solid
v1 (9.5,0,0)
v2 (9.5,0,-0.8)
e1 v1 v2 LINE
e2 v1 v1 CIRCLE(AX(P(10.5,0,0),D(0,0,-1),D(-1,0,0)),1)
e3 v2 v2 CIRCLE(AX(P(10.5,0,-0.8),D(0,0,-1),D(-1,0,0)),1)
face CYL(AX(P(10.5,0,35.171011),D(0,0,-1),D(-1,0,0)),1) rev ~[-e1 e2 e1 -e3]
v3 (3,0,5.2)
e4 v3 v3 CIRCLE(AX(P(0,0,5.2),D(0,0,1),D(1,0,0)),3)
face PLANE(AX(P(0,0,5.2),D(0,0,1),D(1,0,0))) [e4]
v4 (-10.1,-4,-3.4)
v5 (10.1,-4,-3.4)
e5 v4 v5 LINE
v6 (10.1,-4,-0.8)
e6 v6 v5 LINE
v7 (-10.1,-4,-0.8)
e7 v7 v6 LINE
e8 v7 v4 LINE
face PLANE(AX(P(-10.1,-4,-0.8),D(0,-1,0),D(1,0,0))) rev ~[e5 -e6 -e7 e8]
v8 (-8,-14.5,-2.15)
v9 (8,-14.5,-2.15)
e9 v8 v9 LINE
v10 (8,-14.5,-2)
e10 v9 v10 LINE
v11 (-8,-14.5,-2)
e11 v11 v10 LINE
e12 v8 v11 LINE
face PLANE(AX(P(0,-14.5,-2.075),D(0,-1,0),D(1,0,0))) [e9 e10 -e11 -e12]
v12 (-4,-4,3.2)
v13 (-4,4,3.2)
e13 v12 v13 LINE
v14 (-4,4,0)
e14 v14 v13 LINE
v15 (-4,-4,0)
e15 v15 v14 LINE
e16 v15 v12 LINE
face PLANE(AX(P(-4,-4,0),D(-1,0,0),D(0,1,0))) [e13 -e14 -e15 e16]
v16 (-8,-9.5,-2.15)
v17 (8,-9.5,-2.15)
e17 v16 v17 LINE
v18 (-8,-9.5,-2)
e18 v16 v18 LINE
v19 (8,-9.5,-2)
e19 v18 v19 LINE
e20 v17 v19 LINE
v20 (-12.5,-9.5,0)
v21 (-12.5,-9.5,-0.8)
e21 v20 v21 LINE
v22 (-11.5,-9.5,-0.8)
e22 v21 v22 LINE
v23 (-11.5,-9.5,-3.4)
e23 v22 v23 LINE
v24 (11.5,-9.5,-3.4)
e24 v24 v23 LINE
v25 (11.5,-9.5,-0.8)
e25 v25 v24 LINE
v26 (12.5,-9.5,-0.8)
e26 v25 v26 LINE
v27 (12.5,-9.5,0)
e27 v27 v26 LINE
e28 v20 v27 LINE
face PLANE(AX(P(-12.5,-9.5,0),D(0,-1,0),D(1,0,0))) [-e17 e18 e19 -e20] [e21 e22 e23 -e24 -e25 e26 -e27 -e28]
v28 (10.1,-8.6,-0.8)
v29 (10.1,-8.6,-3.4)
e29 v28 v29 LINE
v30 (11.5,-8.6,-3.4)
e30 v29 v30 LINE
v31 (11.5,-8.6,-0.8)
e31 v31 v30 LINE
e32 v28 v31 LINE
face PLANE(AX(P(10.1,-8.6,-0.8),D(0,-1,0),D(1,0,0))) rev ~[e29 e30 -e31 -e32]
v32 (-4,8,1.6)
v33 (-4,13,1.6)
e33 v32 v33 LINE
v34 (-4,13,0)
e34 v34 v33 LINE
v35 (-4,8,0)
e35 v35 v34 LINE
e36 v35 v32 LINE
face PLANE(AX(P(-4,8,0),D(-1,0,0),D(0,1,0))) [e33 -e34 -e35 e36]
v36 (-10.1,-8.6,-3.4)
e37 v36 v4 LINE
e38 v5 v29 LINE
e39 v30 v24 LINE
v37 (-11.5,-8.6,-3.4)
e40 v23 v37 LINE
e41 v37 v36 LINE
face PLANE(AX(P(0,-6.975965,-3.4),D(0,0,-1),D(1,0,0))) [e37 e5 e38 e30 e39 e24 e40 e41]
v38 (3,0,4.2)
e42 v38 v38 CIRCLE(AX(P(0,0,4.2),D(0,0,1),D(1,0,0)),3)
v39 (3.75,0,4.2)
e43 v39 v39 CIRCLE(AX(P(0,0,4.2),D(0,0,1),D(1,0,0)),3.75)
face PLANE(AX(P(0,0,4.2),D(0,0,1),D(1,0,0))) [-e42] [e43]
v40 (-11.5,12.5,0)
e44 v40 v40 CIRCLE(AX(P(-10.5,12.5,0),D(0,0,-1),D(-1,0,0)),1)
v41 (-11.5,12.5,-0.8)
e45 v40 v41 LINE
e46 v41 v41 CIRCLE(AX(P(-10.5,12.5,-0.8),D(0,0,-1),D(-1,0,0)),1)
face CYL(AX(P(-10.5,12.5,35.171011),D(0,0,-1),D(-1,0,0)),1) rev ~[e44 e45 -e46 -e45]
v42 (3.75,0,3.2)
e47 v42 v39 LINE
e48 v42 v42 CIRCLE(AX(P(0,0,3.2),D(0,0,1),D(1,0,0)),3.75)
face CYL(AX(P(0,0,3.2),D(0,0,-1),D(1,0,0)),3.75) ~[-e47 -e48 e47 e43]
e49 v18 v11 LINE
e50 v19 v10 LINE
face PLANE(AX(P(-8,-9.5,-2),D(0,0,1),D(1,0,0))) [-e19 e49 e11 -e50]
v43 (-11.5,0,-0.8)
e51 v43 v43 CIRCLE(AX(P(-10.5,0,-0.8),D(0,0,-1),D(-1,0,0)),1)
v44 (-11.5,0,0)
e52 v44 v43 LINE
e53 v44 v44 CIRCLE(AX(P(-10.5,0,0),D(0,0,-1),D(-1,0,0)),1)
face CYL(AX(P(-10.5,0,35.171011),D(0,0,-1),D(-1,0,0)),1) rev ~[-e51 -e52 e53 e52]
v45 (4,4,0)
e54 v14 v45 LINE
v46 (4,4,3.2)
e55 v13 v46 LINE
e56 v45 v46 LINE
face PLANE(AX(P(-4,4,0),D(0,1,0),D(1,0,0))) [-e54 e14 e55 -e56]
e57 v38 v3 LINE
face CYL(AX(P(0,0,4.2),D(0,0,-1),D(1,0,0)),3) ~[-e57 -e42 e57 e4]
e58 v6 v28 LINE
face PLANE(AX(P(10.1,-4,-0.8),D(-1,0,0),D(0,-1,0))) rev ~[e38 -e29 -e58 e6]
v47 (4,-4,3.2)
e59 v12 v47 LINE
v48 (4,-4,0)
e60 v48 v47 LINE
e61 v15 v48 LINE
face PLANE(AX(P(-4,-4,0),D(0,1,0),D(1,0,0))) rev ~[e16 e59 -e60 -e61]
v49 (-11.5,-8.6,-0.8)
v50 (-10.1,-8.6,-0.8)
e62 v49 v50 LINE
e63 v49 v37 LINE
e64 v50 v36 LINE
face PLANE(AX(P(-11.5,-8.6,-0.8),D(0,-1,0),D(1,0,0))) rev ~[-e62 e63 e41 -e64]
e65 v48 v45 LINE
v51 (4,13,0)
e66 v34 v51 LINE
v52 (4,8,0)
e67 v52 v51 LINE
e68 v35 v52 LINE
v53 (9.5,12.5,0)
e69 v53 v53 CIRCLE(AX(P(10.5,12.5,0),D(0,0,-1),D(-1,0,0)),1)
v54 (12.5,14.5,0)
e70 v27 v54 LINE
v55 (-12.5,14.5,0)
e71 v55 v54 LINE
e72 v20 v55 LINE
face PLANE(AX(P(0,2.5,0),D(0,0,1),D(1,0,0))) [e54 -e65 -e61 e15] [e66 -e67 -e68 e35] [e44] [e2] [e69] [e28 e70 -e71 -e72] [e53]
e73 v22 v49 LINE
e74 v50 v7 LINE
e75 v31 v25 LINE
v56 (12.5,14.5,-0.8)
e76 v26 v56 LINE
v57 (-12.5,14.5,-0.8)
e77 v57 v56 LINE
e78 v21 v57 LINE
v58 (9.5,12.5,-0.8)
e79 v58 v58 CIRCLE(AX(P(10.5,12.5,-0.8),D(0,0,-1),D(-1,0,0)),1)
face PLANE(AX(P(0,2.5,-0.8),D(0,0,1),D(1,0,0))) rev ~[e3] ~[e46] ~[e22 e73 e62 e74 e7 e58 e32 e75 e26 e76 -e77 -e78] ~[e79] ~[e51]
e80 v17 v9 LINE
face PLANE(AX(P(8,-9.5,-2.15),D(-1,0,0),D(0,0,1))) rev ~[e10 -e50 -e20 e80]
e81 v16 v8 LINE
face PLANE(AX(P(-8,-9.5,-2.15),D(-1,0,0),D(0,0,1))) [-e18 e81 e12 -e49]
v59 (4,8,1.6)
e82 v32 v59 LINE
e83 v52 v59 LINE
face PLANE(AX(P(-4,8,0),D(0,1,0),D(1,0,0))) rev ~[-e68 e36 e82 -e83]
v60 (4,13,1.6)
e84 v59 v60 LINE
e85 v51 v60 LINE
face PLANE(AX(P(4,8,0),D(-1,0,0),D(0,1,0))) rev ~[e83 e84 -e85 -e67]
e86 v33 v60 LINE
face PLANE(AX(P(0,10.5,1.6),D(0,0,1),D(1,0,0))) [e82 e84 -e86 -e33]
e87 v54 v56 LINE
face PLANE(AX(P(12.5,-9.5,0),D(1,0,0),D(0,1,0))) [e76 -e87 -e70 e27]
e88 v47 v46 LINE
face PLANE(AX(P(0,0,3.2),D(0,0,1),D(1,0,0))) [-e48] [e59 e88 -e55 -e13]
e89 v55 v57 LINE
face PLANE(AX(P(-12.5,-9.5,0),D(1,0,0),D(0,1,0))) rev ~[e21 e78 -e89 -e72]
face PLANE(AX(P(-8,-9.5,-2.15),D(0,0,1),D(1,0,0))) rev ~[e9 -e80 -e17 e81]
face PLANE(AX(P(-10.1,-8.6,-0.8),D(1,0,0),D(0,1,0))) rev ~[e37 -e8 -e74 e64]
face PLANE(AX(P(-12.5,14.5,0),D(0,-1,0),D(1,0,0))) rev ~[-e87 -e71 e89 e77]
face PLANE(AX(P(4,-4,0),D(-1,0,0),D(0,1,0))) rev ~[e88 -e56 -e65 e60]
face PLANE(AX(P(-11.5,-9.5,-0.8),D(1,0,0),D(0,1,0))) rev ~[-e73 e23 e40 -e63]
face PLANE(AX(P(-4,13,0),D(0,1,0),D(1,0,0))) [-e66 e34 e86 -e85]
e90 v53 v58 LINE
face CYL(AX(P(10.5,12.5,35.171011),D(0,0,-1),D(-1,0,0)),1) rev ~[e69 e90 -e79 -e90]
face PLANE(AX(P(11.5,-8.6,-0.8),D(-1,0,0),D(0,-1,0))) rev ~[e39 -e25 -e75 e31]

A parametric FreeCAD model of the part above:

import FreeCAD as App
import Part
import Sketcher
from FreeCAD import Vector
Q = App.Units.Quantity


def add_polygon(sketch, points):
    """Adds a closed chain of lines whose ends are joined by coincident constraints."""
    first, n = sketch.GeometryCount, len(points)
    for a, b in zip(points, points[1:] + points[:1]):
        sketch.addGeometry(Part.LineSegment(App.Vector(*a, 0), App.Vector(*b, 0)), False)
    for i in range(n):
        sketch.addConstraint(Sketcher.Constraint("Coincident", first + i, 2, first + (i + 1) % n, 1))

doc = App.newDocument("Part")
params = doc.addObject("Spreadsheet::Sheet", "Params")
for row, (alias, value) in enumerate([
    ("sketch1_width", "25 mm"),
    ("sketch1_height", "24 mm"),
    ("pad1_length", "0.8 mm"),
    ("sketch2_width", "8 mm"),
    ("pad2_length", "3.2 mm"),
    ("sketch3_diameter", "7.5 mm"),
    ("pad3_length", "1 mm"),
    ("sketch4_diameter", "6 mm"),
    ("pad4_length", "1 mm"),
    ("sketch5_diameter", "2 mm"),
    ("hole_diameter", "2 mm"),
    ("sketch6_width", "8 mm"),
    ("sketch6_height", "5 mm"),
    ("pad5_length", "1.6 mm"),
    ("sketch7_width", "23 mm"),
    ("sketch7_width2", "1.4 mm"),
    ("sketch7_height", "0.9 mm"),
    ("sketch7_height2", "4.6 mm"),
    ("pad6_length", "2.6 mm"),
    ("sketch8_width", "16 mm"),
    ("sketch8_height", "0.15 mm"),
    ("pad7_length", "5 mm"),
], start=1):
    params.set(f"A{row}", alias)
    params.set(f"B{row}", "=" + value)
    params.setAlias(f"B{row}", alias)

body = doc.addObject("PartDesign::Body", "Body")

# Sketch on XY plane
sketch1 = doc.addObject("Sketcher::SketchObject", "Sketch")
body.addObject(sketch1)
sketch1.AttachmentSupport = (doc.XY_Plane, [""])
sketch1.MapMode = "FlatFace"
add_polygon(sketch1, [(-12, 14), (-12, -10), (12, -10), (12, 14)])  # lines 0-3
sketch1.addConstraint(Sketcher.Constraint("Vertical", 0))
sketch1.addConstraint(Sketcher.Constraint("Horizontal", 1))
sketch1.addConstraint(Sketcher.Constraint("Vertical", 2))
sketch1.addConstraint(Sketcher.Constraint("Horizontal", 3))
sketch1.addConstraint(Sketcher.Constraint("DistanceX", 1, 1, 1, 2, Q("25 mm")))
sketch1.addConstraint(Sketcher.Constraint("DistanceY", 0, 2, 0, 1, Q("24 mm")))
sketch1.addConstraint(Sketcher.Constraint("DistanceX", 0, 2, -1, 1, Q("12.5 mm")))
sketch1.addConstraint(Sketcher.Constraint("DistanceY", 0, 2, -1, 1, Q("9.5 mm")))
sketch1.setExpression("Constraints[8]", "Params.sketch1_width")
sketch1.setExpression("Constraints[9]", "Params.sketch1_height")
pad1 = doc.addObject("PartDesign::Pad", "Pad")
body.addObject(pad1)
pad1.Profile = sketch1
pad1.setExpression("Length", "Params.pad1_length")
pad1.Reversed = True

# Sketch on XY plane
sketch2 = doc.addObject("Sketcher::SketchObject", "Sketch001")
body.addObject(sketch2)
sketch2.AttachmentSupport = (doc.XY_Plane, [""])
sketch2.MapMode = "FlatFace"
add_polygon(sketch2, [(-4, 4), (-4, -4), (4, -4), (4, 4)])  # lines 0-3
sketch2.addConstraint(Sketcher.Constraint("Vertical", 0))
sketch2.addConstraint(Sketcher.Constraint("Horizontal", 1))
sketch2.addConstraint(Sketcher.Constraint("Vertical", 2))
sketch2.addConstraint(Sketcher.Constraint("Horizontal", 3))
sketch2.addConstraint(Sketcher.Constraint("Symmetric", 0, 2, 2, 2, -1, 1))
sketch2.addConstraint(Sketcher.Constraint("Equal", 3, 0))
sketch2.addConstraint(Sketcher.Constraint("DistanceX", 1, 1, 1, 2, Q("8 mm")))
sketch2.setExpression("Constraints[10]", "Params.sketch2_width")
pad2 = doc.addObject("PartDesign::Pad", "Pad001")
body.addObject(pad2)
pad2.Profile = sketch2
pad2.setExpression("Length", "Params.pad2_length")

# Sketch on XY plane
sketch3 = doc.addObject("Sketcher::SketchObject", "Sketch002")
body.addObject(sketch3)
sketch3.AttachmentSupport = (doc.XY_Plane, [""])
sketch3.MapMode = "FlatFace"
sketch3.AttachmentOffset = App.Placement(Vector(0, 0, 3.2), App.Rotation())
sketch3.addGeometry(Part.Circle(Vector(0, 0, 0), Vector(0, 0, 1), 3.8), False)
sketch3.addConstraint(Sketcher.Constraint("Coincident", 0, 3, -1, 1))
sketch3.addConstraint(Sketcher.Constraint("Diameter", 0, Q("7.5 mm")))
sketch3.setExpression("Constraints[1]", "Params.sketch3_diameter")
pad3 = doc.addObject("PartDesign::Pad", "Pad002")
body.addObject(pad3)
pad3.Profile = sketch3
pad3.setExpression("Length", "Params.pad3_length")

# Sketch on XY plane
sketch4 = doc.addObject("Sketcher::SketchObject", "Sketch003")
body.addObject(sketch4)
sketch4.AttachmentSupport = (doc.XY_Plane, [""])
sketch4.MapMode = "FlatFace"
sketch4.AttachmentOffset = App.Placement(Vector(0, 0, 4.2), App.Rotation())
sketch4.addGeometry(Part.Circle(Vector(0, 0, 0), Vector(0, 0, 1), 3), False)
sketch4.addConstraint(Sketcher.Constraint("Coincident", 0, 3, -1, 1))
sketch4.addConstraint(Sketcher.Constraint("Diameter", 0, Q("6 mm")))
sketch4.setExpression("Constraints[1]", "Params.sketch4_diameter")
pad4 = doc.addObject("PartDesign::Pad", "Pad003")
body.addObject(pad4)
pad4.Profile = sketch4
pad4.setExpression("Length", "Params.pad4_length")

# Sketch on XY plane
sketch5 = doc.addObject("Sketcher::SketchObject", "Sketch004")
body.addObject(sketch5)
sketch5.AttachmentSupport = (doc.XY_Plane, [""])
sketch5.MapMode = "FlatFace"
sketch5.addGeometry(Part.Circle(Vector(-10.5, 12.5, 0), Vector(0, 0, 1), 1), False)
sketch5.addGeometry(Part.Circle(Vector(10.5, 12.5, 0), Vector(0, 0, 1), 1), False)
sketch5.addGeometry(Part.Circle(Vector(10.5, 0, 0), Vector(0, 0, 1), 1), False)
sketch5.addGeometry(Part.Circle(Vector(-10.5, 0, 0), Vector(0, 0, 1), 1), False)
sketch5.addConstraint(Sketcher.Constraint("Equal", 0, 1))
sketch5.addConstraint(Sketcher.Constraint("Equal", 1, 2))
sketch5.addConstraint(Sketcher.Constraint("Equal", 2, 3))
sketch5.addConstraint(Sketcher.Constraint("Symmetric", 2, 3, 3, 3, -1, 1))
sketch5.addConstraint(Sketcher.Constraint("Symmetric", 0, 3, 1, 3, -2))
sketch5.addConstraint(Sketcher.Constraint("PointOnObject", 2, 3, -1))
sketch5.addConstraint(Sketcher.Constraint("Vertical", 1, 3, 2, 3))
sketch5.addConstraint(Sketcher.Constraint("Diameter", 0, Q("2 mm")))
sketch5.addConstraint(Sketcher.Constraint("DistanceX", 0, 3, 1, 3, Q("21 mm")))
sketch5.addConstraint(Sketcher.Constraint("DistanceY", -1, 1, 0, 3, Q("12.5 mm")))
sketch5.setExpression("Constraints[7]", "Params.sketch5_diameter")
doc.recompute()
hole = doc.addObject("PartDesign::Hole", "Hole")
body.addObject(hole)
hole.Profile = sketch5
hole.ThreadType = "None"
hole.setExpression("Diameter", "Params.hole_diameter")
hole.DepthType = "ThroughAll"

# Sketch on XY plane
sketch6 = doc.addObject("Sketcher::SketchObject", "Sketch005")
body.addObject(sketch6)
sketch6.AttachmentSupport = (doc.XY_Plane, [""])
sketch6.MapMode = "FlatFace"
add_polygon(sketch6, [(-4, 13), (-4, 8), (4, 8), (4, 13)])  # lines 0-3
sketch6.addConstraint(Sketcher.Constraint("Vertical", 0))
sketch6.addConstraint(Sketcher.Constraint("Horizontal", 1))
sketch6.addConstraint(Sketcher.Constraint("Vertical", 2))
sketch6.addConstraint(Sketcher.Constraint("Horizontal", 3))
sketch6.addConstraint(Sketcher.Constraint("DistanceX", 1, 1, 1, 2, Q("8 mm")))
sketch6.addConstraint(Sketcher.Constraint("DistanceY", 0, 2, 0, 1, Q("5 mm")))
sketch6.addConstraint(Sketcher.Constraint("DistanceX", 0, 2, -1, 1, Q("4 mm")))
sketch6.addConstraint(Sketcher.Constraint("DistanceY", -1, 1, 0, 2, Q("8 mm")))
sketch6.setExpression("Constraints[8]", "Params.sketch6_width")
sketch6.setExpression("Constraints[9]", "Params.sketch6_height")
pad5 = doc.addObject("PartDesign::Pad", "Pad004")
body.addObject(pad5)
pad5.Profile = sketch6
pad5.setExpression("Length", "Params.pad5_length")

# Sketch on XY plane
sketch7 = doc.addObject("Sketcher::SketchObject", "Sketch006")
body.addObject(sketch7)
sketch7.AttachmentSupport = (doc.XY_Plane, [""])
sketch7.MapMode = "FlatFace"
sketch7.AttachmentOffset = App.Placement(Vector(0, 0, -0.8), App.Rotation())
add_polygon(sketch7, [(11.5, -9.5), (-11.5, -9.5), (-11.5, -8.6), (-10.1, -8.6), (-10.1, -4), (10.1, -4), (10.1, -8.6), (11.5, -8.6)])  # lines 0-7
sketch7.addConstraint(Sketcher.Constraint("Horizontal", 0))
sketch7.addConstraint(Sketcher.Constraint("Vertical", 1))
sketch7.addConstraint(Sketcher.Constraint("Horizontal", 2))
sketch7.addConstraint(Sketcher.Constraint("Vertical", 3))
sketch7.addConstraint(Sketcher.Constraint("Horizontal", 4))
sketch7.addConstraint(Sketcher.Constraint("Vertical", 5))
sketch7.addConstraint(Sketcher.Constraint("Horizontal", 6))
sketch7.addConstraint(Sketcher.Constraint("Vertical", 7))
sketch7.addConstraint(Sketcher.Constraint("Symmetric", 2, 2, 5, 2, -2))
sketch7.addConstraint(Sketcher.Constraint("Equal", 2, 6))
sketch7.addConstraint(Sketcher.Constraint("DistanceX", 0, 2, 0, 1, Q("23 mm")))
sketch7.addConstraint(Sketcher.Constraint("DistanceX", 2, 1, 2, 2, Q("1.4 mm")))
sketch7.addConstraint(Sketcher.Constraint("DistanceY", 1, 1, 1, 2, Q("0.9 mm")))
sketch7.addConstraint(Sketcher.Constraint("DistanceY", 3, 1, 3, 2, Q("4.6 mm")))
sketch7.addConstraint(Sketcher.Constraint("DistanceY", 3, 2, -1, 1, Q("4 mm")))
sketch7.setExpression("Constraints[18]", "Params.sketch7_width")
sketch7.setExpression("Constraints[19]", "Params.sketch7_width2")
sketch7.setExpression("Constraints[20]", "Params.sketch7_height")
sketch7.setExpression("Constraints[21]", "Params.sketch7_height2")
pad6 = doc.addObject("PartDesign::Pad", "Pad005")
body.addObject(pad6)
pad6.Profile = sketch7
pad6.setExpression("Length", "Params.pad6_length")
pad6.Reversed = True

# Sketch on XZ plane
sketch8 = doc.addObject("Sketcher::SketchObject", "Sketch007")
body.addObject(sketch8)
sketch8.AttachmentSupport = (doc.XZ_Plane, [""])
sketch8.MapMode = "FlatFace"
sketch8.AttachmentOffset = App.Placement(Vector(0, 0, 9.5), App.Rotation())
add_polygon(sketch8, [(-8, -2), (-8, -2.15), (8, -2.15), (8, -2)])  # lines 0-3
sketch8.addConstraint(Sketcher.Constraint("Vertical", 0))
sketch8.addConstraint(Sketcher.Constraint("Horizontal", 1))
sketch8.addConstraint(Sketcher.Constraint("Vertical", 2))
sketch8.addConstraint(Sketcher.Constraint("Horizontal", 3))
sketch8.addConstraint(Sketcher.Constraint("DistanceX", 1, 1, 1, 2, Q("16 mm")))
sketch8.addConstraint(Sketcher.Constraint("DistanceX", 0, 2, -1, 1, Q("8 mm")))
sketch8.addConstraint(Sketcher.Constraint("DistanceY", 2, 2, -1, 1, Q("2 mm")))
sketch8.addConstraint(Sketcher.Constraint("DistanceY", 0, 2, 0, 1, Q("0.15 mm")))
sketch8.setExpression("Constraints[8]", "Params.sketch8_width")
sketch8.setExpression("Constraints[11]", "Params.sketch8_height")
pad7 = doc.addObject("PartDesign::Pad", "Pad006")
body.addObject(pad7)
pad7.Profile = sketch8
pad7.setExpression("Length", "Params.pad7_length")

doc.recompute()
